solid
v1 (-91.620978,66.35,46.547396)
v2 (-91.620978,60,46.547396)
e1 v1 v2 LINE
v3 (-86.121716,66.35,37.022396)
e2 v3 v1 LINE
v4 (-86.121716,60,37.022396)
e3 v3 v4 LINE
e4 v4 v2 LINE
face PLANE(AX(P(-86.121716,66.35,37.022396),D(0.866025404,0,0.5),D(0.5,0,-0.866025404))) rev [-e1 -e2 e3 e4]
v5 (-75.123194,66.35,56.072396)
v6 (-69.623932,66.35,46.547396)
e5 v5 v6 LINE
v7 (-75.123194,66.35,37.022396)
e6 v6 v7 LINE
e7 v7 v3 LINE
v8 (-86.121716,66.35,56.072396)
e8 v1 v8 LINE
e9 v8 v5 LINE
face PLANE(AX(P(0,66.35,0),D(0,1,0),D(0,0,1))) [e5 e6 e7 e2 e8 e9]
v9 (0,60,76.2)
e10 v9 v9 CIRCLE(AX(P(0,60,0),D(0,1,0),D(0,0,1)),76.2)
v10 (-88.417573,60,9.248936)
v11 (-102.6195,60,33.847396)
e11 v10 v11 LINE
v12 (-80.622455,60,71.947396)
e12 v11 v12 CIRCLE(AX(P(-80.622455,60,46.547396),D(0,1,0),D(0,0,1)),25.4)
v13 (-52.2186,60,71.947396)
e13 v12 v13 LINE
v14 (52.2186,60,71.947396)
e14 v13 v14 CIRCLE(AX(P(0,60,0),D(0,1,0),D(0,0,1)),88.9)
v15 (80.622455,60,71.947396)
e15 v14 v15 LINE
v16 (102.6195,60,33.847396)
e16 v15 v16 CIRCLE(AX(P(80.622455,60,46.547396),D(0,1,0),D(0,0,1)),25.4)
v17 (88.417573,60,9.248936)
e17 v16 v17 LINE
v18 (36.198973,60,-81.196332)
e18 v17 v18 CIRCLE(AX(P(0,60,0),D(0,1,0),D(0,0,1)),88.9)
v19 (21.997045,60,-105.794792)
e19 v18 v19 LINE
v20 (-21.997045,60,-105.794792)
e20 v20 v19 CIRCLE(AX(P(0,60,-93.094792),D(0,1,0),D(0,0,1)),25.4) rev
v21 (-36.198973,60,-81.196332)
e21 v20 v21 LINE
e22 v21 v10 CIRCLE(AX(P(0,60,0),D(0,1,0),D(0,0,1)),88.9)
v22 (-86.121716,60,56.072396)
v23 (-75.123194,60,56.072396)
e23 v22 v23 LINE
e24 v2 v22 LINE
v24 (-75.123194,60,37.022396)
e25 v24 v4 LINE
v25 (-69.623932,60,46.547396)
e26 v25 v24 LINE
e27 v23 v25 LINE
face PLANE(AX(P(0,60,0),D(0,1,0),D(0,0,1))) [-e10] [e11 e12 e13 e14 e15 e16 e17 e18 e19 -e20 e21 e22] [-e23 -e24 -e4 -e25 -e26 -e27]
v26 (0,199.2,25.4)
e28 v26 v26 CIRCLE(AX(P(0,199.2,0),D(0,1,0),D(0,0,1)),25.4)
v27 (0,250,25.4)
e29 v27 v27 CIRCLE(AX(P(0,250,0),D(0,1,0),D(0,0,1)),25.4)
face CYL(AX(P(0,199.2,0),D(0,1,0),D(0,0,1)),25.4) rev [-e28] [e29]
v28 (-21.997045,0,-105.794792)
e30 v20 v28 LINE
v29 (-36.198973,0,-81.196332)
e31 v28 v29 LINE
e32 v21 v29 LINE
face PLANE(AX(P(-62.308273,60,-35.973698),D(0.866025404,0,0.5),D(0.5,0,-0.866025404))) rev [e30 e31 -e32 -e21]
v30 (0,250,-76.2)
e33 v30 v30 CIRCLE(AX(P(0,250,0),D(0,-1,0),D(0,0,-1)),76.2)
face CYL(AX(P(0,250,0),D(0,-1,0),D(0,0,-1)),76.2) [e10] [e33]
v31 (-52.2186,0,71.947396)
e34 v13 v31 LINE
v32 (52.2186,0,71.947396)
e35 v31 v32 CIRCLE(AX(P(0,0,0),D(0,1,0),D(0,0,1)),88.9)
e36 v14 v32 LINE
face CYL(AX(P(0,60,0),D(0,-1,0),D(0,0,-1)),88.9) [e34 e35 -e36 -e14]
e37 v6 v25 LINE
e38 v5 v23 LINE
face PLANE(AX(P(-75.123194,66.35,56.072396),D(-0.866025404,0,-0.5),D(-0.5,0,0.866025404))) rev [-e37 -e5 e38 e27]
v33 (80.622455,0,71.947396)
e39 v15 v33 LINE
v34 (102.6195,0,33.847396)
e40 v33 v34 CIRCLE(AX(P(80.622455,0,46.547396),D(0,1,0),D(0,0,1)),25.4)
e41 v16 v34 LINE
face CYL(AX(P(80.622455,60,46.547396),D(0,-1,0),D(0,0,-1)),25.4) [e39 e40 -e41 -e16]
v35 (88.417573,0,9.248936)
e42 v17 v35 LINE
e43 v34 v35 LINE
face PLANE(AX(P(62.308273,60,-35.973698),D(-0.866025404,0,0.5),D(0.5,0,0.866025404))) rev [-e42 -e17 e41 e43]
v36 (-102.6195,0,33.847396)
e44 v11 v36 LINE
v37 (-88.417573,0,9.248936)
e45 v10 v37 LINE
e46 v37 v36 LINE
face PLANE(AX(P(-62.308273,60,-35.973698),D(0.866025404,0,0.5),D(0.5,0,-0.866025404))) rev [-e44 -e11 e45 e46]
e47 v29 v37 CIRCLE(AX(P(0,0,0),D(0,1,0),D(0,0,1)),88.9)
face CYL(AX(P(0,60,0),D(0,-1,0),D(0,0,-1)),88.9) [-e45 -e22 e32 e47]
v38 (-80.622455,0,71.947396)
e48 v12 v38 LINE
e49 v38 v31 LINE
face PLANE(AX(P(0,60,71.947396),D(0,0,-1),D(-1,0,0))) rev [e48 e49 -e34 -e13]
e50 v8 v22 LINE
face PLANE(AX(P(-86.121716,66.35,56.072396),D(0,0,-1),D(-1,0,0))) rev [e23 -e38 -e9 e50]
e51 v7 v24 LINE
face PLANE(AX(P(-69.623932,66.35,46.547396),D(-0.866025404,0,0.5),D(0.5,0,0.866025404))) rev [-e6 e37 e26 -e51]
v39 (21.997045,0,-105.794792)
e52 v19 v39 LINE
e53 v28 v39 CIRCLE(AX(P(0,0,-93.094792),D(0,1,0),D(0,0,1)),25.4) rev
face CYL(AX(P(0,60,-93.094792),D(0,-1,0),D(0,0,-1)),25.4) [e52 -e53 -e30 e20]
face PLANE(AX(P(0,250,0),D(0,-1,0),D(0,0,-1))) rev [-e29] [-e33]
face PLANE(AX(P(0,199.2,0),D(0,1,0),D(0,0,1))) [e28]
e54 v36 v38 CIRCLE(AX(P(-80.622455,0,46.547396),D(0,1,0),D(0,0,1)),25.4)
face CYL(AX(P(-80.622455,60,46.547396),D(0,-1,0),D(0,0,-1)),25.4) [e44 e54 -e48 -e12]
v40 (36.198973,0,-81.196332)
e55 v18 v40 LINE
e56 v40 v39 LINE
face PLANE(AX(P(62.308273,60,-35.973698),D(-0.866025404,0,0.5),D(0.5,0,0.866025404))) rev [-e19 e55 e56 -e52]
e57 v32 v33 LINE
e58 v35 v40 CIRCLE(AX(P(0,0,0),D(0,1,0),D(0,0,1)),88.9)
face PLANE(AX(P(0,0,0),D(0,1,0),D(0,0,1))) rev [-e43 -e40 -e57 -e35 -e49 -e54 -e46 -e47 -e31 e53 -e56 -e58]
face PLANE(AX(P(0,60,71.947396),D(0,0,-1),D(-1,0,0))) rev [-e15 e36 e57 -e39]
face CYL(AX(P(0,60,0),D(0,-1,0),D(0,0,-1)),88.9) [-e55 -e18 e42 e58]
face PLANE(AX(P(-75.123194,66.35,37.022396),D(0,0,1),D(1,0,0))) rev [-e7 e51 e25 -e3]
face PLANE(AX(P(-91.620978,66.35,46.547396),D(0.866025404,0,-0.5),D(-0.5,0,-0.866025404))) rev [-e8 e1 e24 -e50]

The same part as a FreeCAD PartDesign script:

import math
import FreeCAD as App
import Part
import Sketcher
Q = App.Units.Quantity


def add_polygon(sketch, points):
    """Adds a closed chain of lines whose ends are joined by coincident constraints."""
    first, n = sketch.GeometryCount, len(points)
    for a, b in zip(points, points[1:] + points[:1]):
        sketch.addGeometry(Part.LineSegment(App.Vector(*a, 0), App.Vector(*b, 0)), False)
    for i in range(n):
        sketch.addConstraint(Sketcher.Constraint("Coincident", first + i, 2, first + (i + 1) % n, 1))

doc = App.newDocument("Part")
body = doc.addObject("PartDesign::Body", "Body")

sketch1 = body.newObject("Sketcher::SketchObject", "Sketch")
sketch1.AttachmentSupport = (doc.getObject("XZ_Plane"), [""])
sketch1.MapMode = "FlatFace"
sketch1.addGeometry(Part.ArcOfCircle(Part.Circle(App.Vector(0, 0, 0), App.Vector(0, 0, 1), 89), math.radians(174), math.radians(246)), False)
sketch1.addGeometry(Part.LineSegment(App.Vector(-88, 9, 0), App.Vector(-103, 34, 0)), False)
sketch1.addGeometry(Part.ArcOfCircle(Part.Circle(App.Vector(-81, 47, 0), App.Vector(0, 0, 1), 25), math.radians(90), math.radians(210)), False)
sketch1.addGeometry(Part.LineSegment(App.Vector(-81, 72, 0), App.Vector(-52, 72, 0)), False)
sketch1.addGeometry(Part.ArcOfCircle(Part.Circle(App.Vector(0, 0, 0), App.Vector(0, 0, 1), 89), math.radians(54), math.radians(126)), False)
sketch1.addGeometry(Part.LineSegment(App.Vector(52, 72, 0), App.Vector(81, 72, 0)), False)
sketch1.addGeometry(Part.ArcOfCircle(Part.Circle(App.Vector(81, 47, 0), App.Vector(0, 0, 1), 25), math.radians(-30), math.radians(90)), False)
sketch1.addGeometry(Part.LineSegment(App.Vector(103, 34, 0), App.Vector(88, 9, 0)), False)
sketch1.addGeometry(Part.ArcOfCircle(Part.Circle(App.Vector(0, 0, 0), App.Vector(0, 0, 1), 89), math.radians(-66), math.radians(6)), False)
sketch1.addGeometry(Part.LineSegment(App.Vector(36, -81, 0), App.Vector(22, -106, 0)), False)
sketch1.addGeometry(Part.ArcOfCircle(Part.Circle(App.Vector(0, -93, 0), App.Vector(0, 0, 1), 25), math.radians(-150), math.radians(-30)), False)
sketch1.addGeometry(Part.LineSegment(App.Vector(-22, -106, 0), App.Vector(-36, -81, 0)), False)
sketch1.addGeometry(Part.ArcOfCircle(Part.Circle(App.Vector(0, 0, 0), App.Vector(0, 0, 1), 76), math.radians(126), math.radians(174)), False)
sketch1.addGeometry(Part.ArcOfCircle(Part.Circle(App.Vector(0, 0, 0), App.Vector(0, 0, 1), 76), math.radians(174), math.radians(246)), False)
sketch1.addGeometry(Part.ArcOfCircle(Part.Circle(App.Vector(0, 0, 0), App.Vector(0, 0, 1), 76), math.radians(-114), math.radians(-66)), False)
sketch1.addGeometry(Part.ArcOfCircle(Part.Circle(App.Vector(0, 0, 0), App.Vector(0, 0, 1), 76), math.radians(-66), math.radians(0)), False)
sketch1.addGeometry(Part.ArcOfCircle(Part.Circle(App.Vector(0, 0, 0), App.Vector(0, 0, 1), 76), math.radians(0), math.radians(5.97)), False)
sketch1.addGeometry(Part.ArcOfCircle(Part.Circle(App.Vector(0, 0, 0), App.Vector(0, 0, 1), 76), math.radians(6), math.radians(54)), False)
sketch1.addGeometry(Part.ArcOfCircle(Part.Circle(App.Vector(0, 0, 0), App.Vector(0, 0, 1), 76), math.radians(54), math.radians(126)), False)
sketch1.addConstraint(Sketcher.Constraint("Coincident", 0, 1, 1, 1))
sketch1.addConstraint(Sketcher.Constraint("Tangent", 1, 2, 2, 2))
sketch1.addConstraint(Sketcher.Constraint("Tangent", 2, 1, 3, 1))
sketch1.addConstraint(Sketcher.Constraint("Coincident", 3, 2, 4, 2))
sketch1.addConstraint(Sketcher.Constraint("Coincident", 4, 1, 5, 1))
sketch1.addConstraint(Sketcher.Constraint("Tangent", 5, 2, 6, 2))
sketch1.addConstraint(Sketcher.Constraint("Tangent", 6, 1, 7, 1))
sketch1.addConstraint(Sketcher.Constraint("Coincident", 7, 2, 8, 2))
sketch1.addConstraint(Sketcher.Constraint("Coincident", 8, 1, 9, 1))
sketch1.addConstraint(Sketcher.Constraint("Tangent", 9, 2, 10, 2))
sketch1.addConstraint(Sketcher.Constraint("Tangent", 10, 1, 11, 1))
sketch1.addConstraint(Sketcher.Constraint("Coincident", 11, 2, 0, 2))
sketch1.addConstraint(Sketcher.Constraint("Tangent", 12, 2, 13, 1))
sketch1.addConstraint(Sketcher.Constraint("Tangent", 13, 2, 14, 1))
sketch1.addConstraint(Sketcher.Constraint("Tangent", 14, 2, 15, 1))
sketch1.addConstraint(Sketcher.Constraint("Tangent", 15, 2, 16, 1))
sketch1.addConstraint(Sketcher.Constraint("Tangent", 16, 2, 17, 1))
sketch1.addConstraint(Sketcher.Constraint("Tangent", 17, 2, 18, 1))
sketch1.addConstraint(Sketcher.Constraint("Tangent", 18, 2, 12, 1))
sketch1.addConstraint(Sketcher.Constraint("Horizontal", 3))
sketch1.addConstraint(Sketcher.Constraint("Horizontal", 5))
sketch1.addConstraint(Sketcher.Constraint("Coincident", 0, 3, -1, 1))
sketch1.addConstraint(Sketcher.Constraint("Coincident", 4, 3, -1, 1))
sketch1.addConstraint(Sketcher.Constraint("Coincident", 8, 3, -1, 1))
sketch1.addConstraint(Sketcher.Constraint("Coincident", 12, 3, -1, 1))
sketch1.addConstraint(Sketcher.Constraint("Coincident", 14, 3, -1, 1))
sketch1.addConstraint(Sketcher.Constraint("Coincident", 16, 3, -1, 1))
sketch1.addConstraint(Sketcher.Constraint("Equal", 0, 4))
sketch1.addConstraint(Sketcher.Constraint("Equal", 2, 6))
sketch1.addConstraint(Sketcher.Constraint("Equal", 4, 8))
sketch1.addConstraint(Sketcher.Constraint("Equal", 6, 10))
sketch1.addConstraint(Sketcher.Constraint("Symmetric", 2, 3, 6, 3, -2))
sketch1.addConstraint(Sketcher.Constraint("Symmetric", 9, 2, 10, 1, -2))
sketch1.addConstraint(Sketcher.Constraint("PointOnObject", 15, 2, -1))
sketch1.addConstraint(Sketcher.Constraint("Parallel", 7, 9))
sketch1.addConstraint(Sketcher.Constraint("Parallel", 1, 11))
sketch1.addConstraint(Sketcher.Constraint("Horizontal", 13, 2, 14, 2))
sketch1.addConstraint(Sketcher.Constraint("Horizontal", 12, 2, 16, 2))
sketch1.addConstraint(Sketcher.Constraint("Horizontal", 17, 2, 18, 2))
sketch1.addConstraint(Sketcher.Constraint("Equal", 7, 9))
sketch1.addConstraint(Sketcher.Constraint("Radius", 2, Q("1 in")))
sketch1.addConstraint(Sketcher.Constraint("Radius", 12, Q("3 in")))
sketch1.addConstraint(Sketcher.Constraint("Radius", 0, Q("3.5 in")))
sketch1.addConstraint(Sketcher.Constraint("Angle", 1, Q("120 deg")))
sketch1.addConstraint(Sketcher.Constraint("DistanceX", 1, 2, -1, 1, 102.6195))
sketch1.addConstraint(Sketcher.Constraint("DistanceX", 3, 2, -1, 1, 52.2186))
sketch1.addConstraint(Sketcher.Constraint("DistanceX", -1, 1, 17, 2, 44.7588))
sketch1.addConstraint(Sketcher.Constraint("DistanceX", 12, 2, -1, 1, 75.786491))
sketch1.addConstraint(Sketcher.Constraint("DistanceX", 13, 2, -1, 1, 31.027691))
pad1 = body.newObject("PartDesign::Pad", "Pad")
pad1.Profile = sketch1
pad1.Length = 60
pad1.Reversed = True

sketch2 = body.newObject("Sketcher::SketchObject", "Sketch001")
sketch2.AttachmentSupport = (doc.getObject("XZ_Plane"), [""])
sketch2.MapMode = "FlatFace"
sketch2.AttachmentOffset = App.Placement(App.Vector(0, 0, -60), App.Rotation())
add_polygon(sketch2, [(-70, 47), (-75, 37), (-86, 37), (-92, 47), (-86, 56), (-75, 56)])
sketch2.addConstraint(Sketcher.Constraint("Horizontal", 1))
sketch2.addConstraint(Sketcher.Constraint("Horizontal", 4))
sketch2.addConstraint(Sketcher.Constraint("Parallel", 0, 3))
sketch2.addConstraint(Sketcher.Constraint("Parallel", 2, 5))
sketch2.addConstraint(Sketcher.Constraint("Horizontal", 2, 2, 5, 2))
sketch2.addConstraint(Sketcher.Constraint("Vertical", 1, 2, 3, 2))
sketch2.addConstraint(Sketcher.Constraint("Vertical", 0, 2, 4, 2))
sketch2.addConstraint(Sketcher.Constraint("Angle", 0, Q("-120 deg")))
sketch2.addConstraint(Sketcher.Constraint("DistanceY", 1, 2, 3, 2, Q("0.75 in")))
sketch2.addConstraint(Sketcher.Constraint("DistanceX", 1, 2, 1, 1, 10.998523))
sketch2.addConstraint(Sketcher.Constraint("DistanceX", 0, 2, -1, 1, 75.123194))
sketch2.addConstraint(Sketcher.Constraint("DistanceY", -1, 1, 0, 2, 37.022396))
pad2 = body.newObject("PartDesign::Pad", "Pad001")
pad2.Profile = sketch2
pad2.Length = Q("0.25 in")
pad2.Reversed = True

sketch3 = body.newObject("Sketcher::SketchObject", "Sketch002")
sketch3.AttachmentSupport = (doc.getObject("XZ_Plane"), [""])
sketch3.MapMode = "FlatFace"
sketch3.addGeometry(Part.Circle(App.Vector(0, 0, 0), App.Vector(0, 0, 1), 76), False)
sketch3.addConstraint(Sketcher.Constraint("Coincident", 0, 3, -1, 1))
sketch3.addConstraint(Sketcher.Constraint("Diameter", 0, Q("6 in")))
pad3 = body.newObject("PartDesign::Pad", "Pad002")
pad3.Profile = sketch3
pad3.Length = 250
pad3.Reversed = True

sketch4 = body.newObject("Sketcher::SketchObject", "Sketch003")
sketch4.AttachmentSupport = (doc.getObject("XZ_Plane"), [""])
sketch4.MapMode = "FlatFace"
sketch4.AttachmentOffset = App.Placement(App.Vector(0, 0, -250), App.Rotation())
sketch4.addGeometry(Part.Circle(App.Vector(0, 0, 0), App.Vector(0, 0, 1), 25), False)
sketch4.addConstraint(Sketcher.Constraint("Coincident", 0, 3, -1, 1))
sketch4.addConstraint(Sketcher.Constraint("Diameter", 0, Q("2 in")))
pocket1 = body.newObject("PartDesign::Pocket", "Pocket")
pocket1.Profile = sketch4
pocket1.Length = Q("2 in")
pocket1.Reversed = True

doc.recompute()
